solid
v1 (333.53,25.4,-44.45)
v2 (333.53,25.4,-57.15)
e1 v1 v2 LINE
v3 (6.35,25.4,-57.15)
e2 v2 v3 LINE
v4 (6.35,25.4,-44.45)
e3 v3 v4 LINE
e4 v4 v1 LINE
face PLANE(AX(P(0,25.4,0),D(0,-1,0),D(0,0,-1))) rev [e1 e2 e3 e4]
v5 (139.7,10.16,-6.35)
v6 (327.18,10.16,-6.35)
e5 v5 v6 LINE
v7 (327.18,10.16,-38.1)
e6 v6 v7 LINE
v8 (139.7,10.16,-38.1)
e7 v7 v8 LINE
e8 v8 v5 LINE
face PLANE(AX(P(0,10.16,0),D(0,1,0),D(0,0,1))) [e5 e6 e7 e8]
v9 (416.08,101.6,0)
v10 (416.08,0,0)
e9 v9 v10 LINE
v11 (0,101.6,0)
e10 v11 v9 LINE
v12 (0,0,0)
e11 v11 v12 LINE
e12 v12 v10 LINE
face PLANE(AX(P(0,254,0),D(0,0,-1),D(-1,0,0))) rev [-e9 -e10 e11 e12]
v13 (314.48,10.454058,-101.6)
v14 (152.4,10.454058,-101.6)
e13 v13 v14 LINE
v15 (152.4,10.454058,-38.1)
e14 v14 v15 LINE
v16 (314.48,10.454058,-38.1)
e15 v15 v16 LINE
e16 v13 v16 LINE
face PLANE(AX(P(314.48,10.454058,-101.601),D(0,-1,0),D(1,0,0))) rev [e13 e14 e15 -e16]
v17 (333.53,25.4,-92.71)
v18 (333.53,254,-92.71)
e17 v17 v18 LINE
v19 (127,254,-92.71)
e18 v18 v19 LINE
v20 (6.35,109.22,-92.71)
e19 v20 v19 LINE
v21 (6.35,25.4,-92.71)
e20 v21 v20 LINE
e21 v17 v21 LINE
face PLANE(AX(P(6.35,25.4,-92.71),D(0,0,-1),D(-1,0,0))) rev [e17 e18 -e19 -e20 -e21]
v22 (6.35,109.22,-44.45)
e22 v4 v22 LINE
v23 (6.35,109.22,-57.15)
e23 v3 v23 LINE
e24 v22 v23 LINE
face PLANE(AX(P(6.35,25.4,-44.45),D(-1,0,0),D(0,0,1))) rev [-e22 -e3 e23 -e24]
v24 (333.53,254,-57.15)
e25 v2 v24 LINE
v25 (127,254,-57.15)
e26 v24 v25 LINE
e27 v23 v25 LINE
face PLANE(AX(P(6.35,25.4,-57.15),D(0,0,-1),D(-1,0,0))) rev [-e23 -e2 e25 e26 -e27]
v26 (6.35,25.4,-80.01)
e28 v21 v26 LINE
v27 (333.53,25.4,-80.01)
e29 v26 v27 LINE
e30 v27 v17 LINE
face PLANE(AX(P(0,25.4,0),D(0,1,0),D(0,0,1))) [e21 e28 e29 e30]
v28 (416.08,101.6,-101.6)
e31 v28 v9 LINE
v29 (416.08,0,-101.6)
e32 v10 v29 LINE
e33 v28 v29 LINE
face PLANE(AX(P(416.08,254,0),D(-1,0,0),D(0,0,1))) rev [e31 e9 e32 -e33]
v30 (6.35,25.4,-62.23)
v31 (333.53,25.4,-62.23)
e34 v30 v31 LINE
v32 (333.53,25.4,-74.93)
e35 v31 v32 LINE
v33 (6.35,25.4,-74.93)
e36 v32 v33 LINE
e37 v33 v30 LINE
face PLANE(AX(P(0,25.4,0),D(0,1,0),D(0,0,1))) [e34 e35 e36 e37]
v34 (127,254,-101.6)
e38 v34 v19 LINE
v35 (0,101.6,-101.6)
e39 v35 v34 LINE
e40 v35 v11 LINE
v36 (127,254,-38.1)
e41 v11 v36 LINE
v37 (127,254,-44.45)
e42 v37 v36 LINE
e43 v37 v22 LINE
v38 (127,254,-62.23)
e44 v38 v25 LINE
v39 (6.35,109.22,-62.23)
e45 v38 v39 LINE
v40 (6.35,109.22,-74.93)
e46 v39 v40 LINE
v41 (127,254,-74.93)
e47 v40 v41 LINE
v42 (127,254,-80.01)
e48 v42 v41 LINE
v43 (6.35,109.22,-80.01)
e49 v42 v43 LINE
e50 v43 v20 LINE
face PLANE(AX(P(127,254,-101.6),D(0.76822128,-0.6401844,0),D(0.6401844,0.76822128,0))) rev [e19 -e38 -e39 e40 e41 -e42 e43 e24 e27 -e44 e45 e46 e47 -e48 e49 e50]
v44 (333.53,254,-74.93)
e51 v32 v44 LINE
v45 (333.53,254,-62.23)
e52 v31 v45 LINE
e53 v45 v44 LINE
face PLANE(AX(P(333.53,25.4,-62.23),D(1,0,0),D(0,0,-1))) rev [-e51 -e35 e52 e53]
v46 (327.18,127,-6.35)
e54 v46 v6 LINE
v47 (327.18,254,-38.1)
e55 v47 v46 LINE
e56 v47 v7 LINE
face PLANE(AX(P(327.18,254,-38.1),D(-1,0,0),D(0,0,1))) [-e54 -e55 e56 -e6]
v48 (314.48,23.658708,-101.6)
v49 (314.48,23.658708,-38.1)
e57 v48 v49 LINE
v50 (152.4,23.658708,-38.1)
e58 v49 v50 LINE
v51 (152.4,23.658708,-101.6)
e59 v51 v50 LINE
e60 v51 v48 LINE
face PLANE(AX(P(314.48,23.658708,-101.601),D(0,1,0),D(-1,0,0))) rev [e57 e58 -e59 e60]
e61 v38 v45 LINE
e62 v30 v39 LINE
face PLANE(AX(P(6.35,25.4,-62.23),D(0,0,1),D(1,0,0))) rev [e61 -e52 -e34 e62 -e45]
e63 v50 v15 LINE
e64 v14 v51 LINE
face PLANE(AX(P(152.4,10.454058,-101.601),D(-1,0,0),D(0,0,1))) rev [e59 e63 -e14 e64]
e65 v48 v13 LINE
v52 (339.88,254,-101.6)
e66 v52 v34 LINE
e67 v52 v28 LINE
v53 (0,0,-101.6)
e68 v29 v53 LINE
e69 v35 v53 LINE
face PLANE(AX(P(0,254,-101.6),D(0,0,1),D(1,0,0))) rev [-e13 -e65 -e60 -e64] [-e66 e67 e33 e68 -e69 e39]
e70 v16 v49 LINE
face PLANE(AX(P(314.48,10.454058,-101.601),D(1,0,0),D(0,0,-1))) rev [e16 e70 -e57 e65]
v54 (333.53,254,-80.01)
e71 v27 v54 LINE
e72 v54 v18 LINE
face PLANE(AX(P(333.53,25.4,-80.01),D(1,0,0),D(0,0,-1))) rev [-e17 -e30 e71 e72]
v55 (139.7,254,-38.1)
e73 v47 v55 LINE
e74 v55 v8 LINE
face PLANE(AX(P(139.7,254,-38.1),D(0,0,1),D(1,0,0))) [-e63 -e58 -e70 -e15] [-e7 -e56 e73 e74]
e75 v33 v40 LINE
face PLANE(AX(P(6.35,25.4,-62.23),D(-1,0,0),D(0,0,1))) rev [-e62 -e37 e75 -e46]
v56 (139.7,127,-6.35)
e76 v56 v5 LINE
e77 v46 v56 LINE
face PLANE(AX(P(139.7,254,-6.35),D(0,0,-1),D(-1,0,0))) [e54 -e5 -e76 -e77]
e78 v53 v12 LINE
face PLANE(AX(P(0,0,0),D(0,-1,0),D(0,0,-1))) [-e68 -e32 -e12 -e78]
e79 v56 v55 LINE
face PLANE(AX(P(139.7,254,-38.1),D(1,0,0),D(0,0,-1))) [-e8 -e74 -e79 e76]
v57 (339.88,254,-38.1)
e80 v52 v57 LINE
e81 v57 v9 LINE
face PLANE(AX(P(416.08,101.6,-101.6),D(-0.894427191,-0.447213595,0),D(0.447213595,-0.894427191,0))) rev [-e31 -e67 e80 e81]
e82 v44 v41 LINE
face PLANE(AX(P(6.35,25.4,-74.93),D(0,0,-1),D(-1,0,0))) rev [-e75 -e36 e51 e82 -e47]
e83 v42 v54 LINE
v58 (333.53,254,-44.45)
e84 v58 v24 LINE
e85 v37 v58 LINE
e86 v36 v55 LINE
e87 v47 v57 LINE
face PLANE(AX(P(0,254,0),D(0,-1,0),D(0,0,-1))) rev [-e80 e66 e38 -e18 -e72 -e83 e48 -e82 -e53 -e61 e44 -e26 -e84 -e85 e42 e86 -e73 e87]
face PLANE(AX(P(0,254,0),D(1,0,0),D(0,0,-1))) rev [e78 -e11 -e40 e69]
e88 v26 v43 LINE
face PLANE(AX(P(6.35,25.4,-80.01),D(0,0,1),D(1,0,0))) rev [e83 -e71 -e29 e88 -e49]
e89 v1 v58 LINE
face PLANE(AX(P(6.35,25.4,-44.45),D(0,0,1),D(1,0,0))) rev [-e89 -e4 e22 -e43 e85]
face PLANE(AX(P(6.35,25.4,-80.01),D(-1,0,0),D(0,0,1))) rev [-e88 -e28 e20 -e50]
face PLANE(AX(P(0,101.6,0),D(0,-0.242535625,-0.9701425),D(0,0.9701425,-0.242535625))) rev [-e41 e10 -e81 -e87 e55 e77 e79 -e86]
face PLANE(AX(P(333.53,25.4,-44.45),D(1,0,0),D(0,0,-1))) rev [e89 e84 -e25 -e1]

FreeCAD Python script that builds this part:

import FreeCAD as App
import Part
import Sketcher

V = App.Vector
Q = App.Units.Quantity

doc = App.newDocument("Part")
body = doc.addObject("PartDesign::Body", "Body")

# Sketch on XZ plane
sketch1 = body.newObject("Sketcher::SketchObject", "Sketch")
sketch1.AttachmentSupport = (doc.getObject("XZ_Plane"), [""])
sketch1.MapMode = "FlatFace"
sketch1.addGeometry([
    Part.LineSegment(V(0, -102, 0), V(0, 0, 0)),
    Part.LineSegment(V(0, 0, 0), V(416, 0, 0)),
    Part.LineSegment(V(416, 0, 0), V(416, -102, 0)),
    Part.LineSegment(V(416, -102, 0), V(0, -102, 0)),
], False)
sketch1.addConstraint([
    Sketcher.Constraint("Coincident", 0, 2, 1, 1),
    Sketcher.Constraint("Coincident", 1, 2, 2, 1),
    Sketcher.Constraint("Coincident", 2, 2, 3, 1),
    Sketcher.Constraint("Coincident", 3, 2, 0, 1),
    Sketcher.Constraint("Vertical", 0),
    Sketcher.Constraint("Horizontal", 1),
    Sketcher.Constraint("Vertical", 2),
    Sketcher.Constraint("Horizontal", 3),
    Sketcher.Constraint("Coincident", 0, 2, -1, 1),
    Sketcher.Constraint("DistanceY", 0, 1, 0, 2, Q("4 in")),
    Sketcher.Constraint("DistanceX", 1, 1, 1, 2, Q("416.08 mm")),
])
pad1 = body.newObject("PartDesign::Pad", "Pad")
pad1.Profile = sketch1
pad1.Length = Q("10 in")
pad1.Reversed = True

# Sketch on XY plane
sketch2 = body.newObject("Sketcher::SketchObject", "Sketch001")
sketch2.AttachmentSupport = (doc.getObject("XY_Plane"), [""])
sketch2.MapMode = "FlatFace"
sketch2.addGeometry([
    Part.LineSegment(V(0, 254, 0), V(0, 102, 0)),  # 0
    Part.LineSegment(V(0, 102, 0), V(127, 254, 0)),  # 1
    Part.LineSegment(V(127, 254, 0), V(0, 254, 0)),  # 2
    Part.LineSegment(V(416, 102, 0), V(416, 254, 0)),  # 3
    Part.LineSegment(V(416, 254, 0), V(340, 254, 0)),  # 4
    Part.LineSegment(V(340, 254, 0), V(416, 102, 0)),  # 5
], False)
sketch2.addConstraint([
    Sketcher.Constraint("Coincident", 0, 2, 1, 1),
    Sketcher.Constraint("Coincident", 1, 2, 2, 1),
    Sketcher.Constraint("Coincident", 2, 2, 0, 1),
    Sketcher.Constraint("Coincident", 3, 2, 4, 1),
    Sketcher.Constraint("Coincident", 4, 2, 5, 1),
    Sketcher.Constraint("Coincident", 5, 2, 3, 1),
    Sketcher.Constraint("Vertical", 0),
    Sketcher.Constraint("Horizontal", 2),
    Sketcher.Constraint("Vertical", 3),
    Sketcher.Constraint("Horizontal", 4),
    Sketcher.Constraint("PointOnObject", 0, 2, -2),
    Sketcher.Constraint("Horizontal", 2, 2, 3, 2),
    Sketcher.Constraint("Horizontal", 0, 2, 5, 2),
    Sketcher.Constraint("DistanceX", 2, 2, 2, 1, Q("5 in")),
    Sketcher.Constraint("DistanceX", 4, 2, 4, 1, Q("3 in")),
    Sketcher.Constraint("DistanceY", 0, 2, 0, 1, Q("6 in")),
    Sketcher.Constraint("DistanceY", -1, 1, 0, 2, Q("4 in")),
    Sketcher.Constraint("DistanceX", -1, 1, 3, 2, Q("416.08 mm")),
])
pocket1 = body.newObject("PartDesign::Pocket", "Pocket")
pocket1.Profile = sketch2
pocket1.Length = Q("4 in")

# Sketch on XZ plane
sketch3 = body.newObject("Sketcher::SketchObject", "Sketch002")
sketch3.AttachmentSupport = (doc.getObject("XZ_Plane"), [""])
sketch3.MapMode = "FlatFace"
sketch3.AttachmentOffset = App.Placement(V(0, 0, -0.4 * 25.4), App.Rotation())
sketch3.addGeometry([
    Part.LineSegment(V(140, -38, 0), V(140, -6, 0)),
    Part.LineSegment(V(140, -6, 0), V(327, -6, 0)),
    Part.LineSegment(V(327, -6, 0), V(327, -38, 0)),
    Part.LineSegment(V(327, -38, 0), V(140, -38, 0)),
], False)
sketch3.addConstraint([
    Sketcher.Constraint("Coincident", 0, 2, 1, 1),
    Sketcher.Constraint("Coincident", 1, 2, 2, 1),
    Sketcher.Constraint("Coincident", 2, 2, 3, 1),
    Sketcher.Constraint("Coincident", 3, 2, 0, 1),
    Sketcher.Constraint("Vertical", 0),
    Sketcher.Constraint("Horizontal", 1),
    Sketcher.Constraint("Vertical", 2),
    Sketcher.Constraint("Horizontal", 3),
    Sketcher.Constraint("DistanceY", 0, 1, 0, 2, Q("1.25 in")),
    Sketcher.Constraint("DistanceX", -1, 1, 0, 2, Q("5.5 in")),
    Sketcher.Constraint("DistanceY", 2, 2, -1, 1, Q("1.5 in")),
    Sketcher.Constraint("DistanceX", 1, 1, 1, 2, Q("187.48 mm")),
])
pocket2 = body.newObject("PartDesign::Pocket", "Pocket001")
pocket2.Profile = sketch3
pocket2.Type = "ThroughAll"

# Sketch on XZ plane
sketch4 = body.newObject("Sketcher::SketchObject", "Sketch003")
sketch4.AttachmentSupport = (doc.getObject("XZ_Plane"), [""])
sketch4.MapMode = "FlatFace"
sketch4.AttachmentOffset = App.Placement(V(0, 0, -10 * 25.4), App.Rotation())
sketch4.addGeometry([
    Part.LineSegment(V(6, -57, 0), V(6, -44, 0)),  # 0
    Part.LineSegment(V(6, -44, 0), V(334, -44, 0)),  # 1
    Part.LineSegment(V(334, -44, 0), V(334, -57, 0)),  # 2
    Part.LineSegment(V(334, -57, 0), V(6, -57, 0)),  # 3
    Part.LineSegment(V(6, -75, 0), V(6, -62, 0)),  # 4
    Part.LineSegment(V(6, -62, 0), V(334, -62, 0)),  # 5
    Part.LineSegment(V(334, -62, 0), V(334, -75, 0)),  # 6
    Part.LineSegment(V(334, -75, 0), V(6, -75, 0)),  # 7
    Part.LineSegment(V(6, -93, 0), V(6, -80, 0)),  # 8
    Part.LineSegment(V(6, -80, 0), V(334, -80, 0)),  # 9
    Part.LineSegment(V(334, -80, 0), V(334, -93, 0)),  # 10
    Part.LineSegment(V(334, -93, 0), V(6, -93, 0)),  # 11
], False)
sketch4.addConstraint([
    Sketcher.Constraint("Coincident", 0, 2, 1, 1),
    Sketcher.Constraint("Coincident", 1, 2, 2, 1),
    Sketcher.Constraint("Coincident", 2, 2, 3, 1),
    Sketcher.Constraint("Coincident", 3, 2, 0, 1),
    Sketcher.Constraint("Coincident", 4, 2, 5, 1),
    Sketcher.Constraint("Coincident", 5, 2, 6, 1),
    Sketcher.Constraint("Coincident", 6, 2, 7, 1),
    Sketcher.Constraint("Coincident", 7, 2, 4, 1),
    Sketcher.Constraint("Coincident", 8, 2, 9, 1),
    Sketcher.Constraint("Coincident", 9, 2, 10, 1),
    Sketcher.Constraint("Coincident", 10, 2, 11, 1),
    Sketcher.Constraint("Coincident", 11, 2, 8, 1),
    Sketcher.Constraint("Vertical", 0),
    Sketcher.Constraint("Horizontal", 1),
    Sketcher.Constraint("Vertical", 2),
    Sketcher.Constraint("Horizontal", 3),
    Sketcher.Constraint("Vertical", 4),
    Sketcher.Constraint("Horizontal", 5),
    Sketcher.Constraint("Vertical", 6),
    Sketcher.Constraint("Horizontal", 7),
    Sketcher.Constraint("Vertical", 8),
    Sketcher.Constraint("Horizontal", 9),
    Sketcher.Constraint("Vertical", 10),
    Sketcher.Constraint("Horizontal", 11),
    Sketcher.Constraint("Vertical", 3, 2, 4, 2),
    Sketcher.Constraint("Vertical", 2, 2, 5, 2),
    Sketcher.Constraint("Vertical", 7, 2, 8, 2),
    Sketcher.Constraint("Vertical", 6, 2, 9, 2),
    Sketcher.Constraint("Equal", 2, 4),
    Sketcher.Constraint("Equal", 6, 8),
    Sketcher.Constraint("DistanceY", 0, 1, 0, 2, Q("0.5 in")),
    Sketcher.Constraint("DistanceY", 4, 2, 3, 2, Q("0.2 in")),
    Sketcher.Constraint("DistanceY", 8, 2, 7, 2, Q("0.2 in")),
    Sketcher.Constraint("DistanceX", -1, 1, 0, 2, Q("0.25 in")),
    Sketcher.Constraint("DistanceY", 0, 2, -1, 1, Q("1.75 in")),
    Sketcher.Constraint("DistanceX", 1, 1, 1, 2, Q("327.18 mm")),
])
pocket3 = body.newObject("PartDesign::Pocket", "Pocket002")
pocket3.Profile = sketch4
pocket3.Length = Q("9 in")
pocket3.Reversed = True

# Sketch on YZ plane
sketch5 = body.newObject("Sketcher::SketchObject", "Sketch004")
sketch5.AttachmentSupport = (doc.getObject("YZ_Plane"), [""])
sketch5.MapMode = "FlatFace"
sketch5.AttachmentOffset = App.Placement(V(0, 0, 416.08), App.Rotation())
sketch5.addGeometry([
    Part.LineSegment(V(254, 0, 0), V(102, 0, 0)),
    Part.LineSegment(V(102, 0, 0), V(254, -38, 0)),
    Part.LineSegment(V(254, -38, 0), V(254, 0, 0)),
], False)
sketch5.addConstraint([
    Sketcher.Constraint("Coincident", 0, 2, 1, 1),
    Sketcher.Constraint("Coincident", 1, 2, 2, 1),
    Sketcher.Constraint("Coincident", 2, 2, 0, 1),
    Sketcher.Constraint("Horizontal", 0),
    Sketcher.Constraint("Vertical", 2),
    Sketcher.Constraint("PointOnObject", 0, 2, -1),
    Sketcher.Constraint("DistanceX", 0, 2, 0, 1, Q("6 in")),
    Sketcher.Constraint("DistanceY", 2, 1, 2, 2, Q("1.5 in")),
    Sketcher.Constraint("DistanceX", -1, 1, 0, 2, Q("4 in")),
])
pocket4 = body.newObject("PartDesign::Pocket", "Pocket003")
pocket4.Profile = sketch5
pocket4.Type = "ThroughAll"

# Sketch on XY plane
sketch6 = body.newObject("Sketcher::SketchObject", "Sketch005")
sketch6.AttachmentSupport = (doc.getObject("XY_Plane"), [""])
sketch6.MapMode = "FlatFace"
sketch6.AttachmentOffset = App.Placement(V(0, 0, -1.5 * 25.4), App.Rotation())
sketch6.addGeometry([
    Part.LineSegment(V(152, 24, 0), V(152, 10, 0)),
    Part.LineSegment(V(152, 10, 0), V(314, 10, 0)),
    Part.LineSegment(V(314, 10, 0), V(314, 24, 0)),
    Part.LineSegment(V(314, 24, 0), V(152, 24, 0)),
], False)
sketch6.addConstraint([
    Sketcher.Constraint("Coincident", 0, 2, 1, 1),
    Sketcher.Constraint("Coincident", 1, 2, 2, 1),
    Sketcher.Constraint("Coincident", 2, 2, 3, 1),
    Sketcher.Constraint("Coincident", 3, 2, 0, 1),
    Sketcher.Constraint("Vertical", 0),
    Sketcher.Constraint("Horizontal", 1),
    Sketcher.Constraint("Vertical", 2),
    Sketcher.Constraint("Horizontal", 3),
    Sketcher.Constraint("DistanceX", -1, 1, 0, 2, Q("6 in")),
    Sketcher.Constraint("DistanceX", 1, 1, 1, 2, Q("162.08 mm")),
    Sketcher.Constraint("DistanceY", 0, 2, 0, 1, Q("13.204649 mm")),
    Sketcher.Constraint("DistanceY", -1, 1, 0, 2, Q("10.454058 mm")),
])
pocket5 = body.newObject("PartDesign::Pocket", "Pocket004")
pocket5.Profile = sketch6
pocket5.Type = "UpToFirst"

doc.recompute()
